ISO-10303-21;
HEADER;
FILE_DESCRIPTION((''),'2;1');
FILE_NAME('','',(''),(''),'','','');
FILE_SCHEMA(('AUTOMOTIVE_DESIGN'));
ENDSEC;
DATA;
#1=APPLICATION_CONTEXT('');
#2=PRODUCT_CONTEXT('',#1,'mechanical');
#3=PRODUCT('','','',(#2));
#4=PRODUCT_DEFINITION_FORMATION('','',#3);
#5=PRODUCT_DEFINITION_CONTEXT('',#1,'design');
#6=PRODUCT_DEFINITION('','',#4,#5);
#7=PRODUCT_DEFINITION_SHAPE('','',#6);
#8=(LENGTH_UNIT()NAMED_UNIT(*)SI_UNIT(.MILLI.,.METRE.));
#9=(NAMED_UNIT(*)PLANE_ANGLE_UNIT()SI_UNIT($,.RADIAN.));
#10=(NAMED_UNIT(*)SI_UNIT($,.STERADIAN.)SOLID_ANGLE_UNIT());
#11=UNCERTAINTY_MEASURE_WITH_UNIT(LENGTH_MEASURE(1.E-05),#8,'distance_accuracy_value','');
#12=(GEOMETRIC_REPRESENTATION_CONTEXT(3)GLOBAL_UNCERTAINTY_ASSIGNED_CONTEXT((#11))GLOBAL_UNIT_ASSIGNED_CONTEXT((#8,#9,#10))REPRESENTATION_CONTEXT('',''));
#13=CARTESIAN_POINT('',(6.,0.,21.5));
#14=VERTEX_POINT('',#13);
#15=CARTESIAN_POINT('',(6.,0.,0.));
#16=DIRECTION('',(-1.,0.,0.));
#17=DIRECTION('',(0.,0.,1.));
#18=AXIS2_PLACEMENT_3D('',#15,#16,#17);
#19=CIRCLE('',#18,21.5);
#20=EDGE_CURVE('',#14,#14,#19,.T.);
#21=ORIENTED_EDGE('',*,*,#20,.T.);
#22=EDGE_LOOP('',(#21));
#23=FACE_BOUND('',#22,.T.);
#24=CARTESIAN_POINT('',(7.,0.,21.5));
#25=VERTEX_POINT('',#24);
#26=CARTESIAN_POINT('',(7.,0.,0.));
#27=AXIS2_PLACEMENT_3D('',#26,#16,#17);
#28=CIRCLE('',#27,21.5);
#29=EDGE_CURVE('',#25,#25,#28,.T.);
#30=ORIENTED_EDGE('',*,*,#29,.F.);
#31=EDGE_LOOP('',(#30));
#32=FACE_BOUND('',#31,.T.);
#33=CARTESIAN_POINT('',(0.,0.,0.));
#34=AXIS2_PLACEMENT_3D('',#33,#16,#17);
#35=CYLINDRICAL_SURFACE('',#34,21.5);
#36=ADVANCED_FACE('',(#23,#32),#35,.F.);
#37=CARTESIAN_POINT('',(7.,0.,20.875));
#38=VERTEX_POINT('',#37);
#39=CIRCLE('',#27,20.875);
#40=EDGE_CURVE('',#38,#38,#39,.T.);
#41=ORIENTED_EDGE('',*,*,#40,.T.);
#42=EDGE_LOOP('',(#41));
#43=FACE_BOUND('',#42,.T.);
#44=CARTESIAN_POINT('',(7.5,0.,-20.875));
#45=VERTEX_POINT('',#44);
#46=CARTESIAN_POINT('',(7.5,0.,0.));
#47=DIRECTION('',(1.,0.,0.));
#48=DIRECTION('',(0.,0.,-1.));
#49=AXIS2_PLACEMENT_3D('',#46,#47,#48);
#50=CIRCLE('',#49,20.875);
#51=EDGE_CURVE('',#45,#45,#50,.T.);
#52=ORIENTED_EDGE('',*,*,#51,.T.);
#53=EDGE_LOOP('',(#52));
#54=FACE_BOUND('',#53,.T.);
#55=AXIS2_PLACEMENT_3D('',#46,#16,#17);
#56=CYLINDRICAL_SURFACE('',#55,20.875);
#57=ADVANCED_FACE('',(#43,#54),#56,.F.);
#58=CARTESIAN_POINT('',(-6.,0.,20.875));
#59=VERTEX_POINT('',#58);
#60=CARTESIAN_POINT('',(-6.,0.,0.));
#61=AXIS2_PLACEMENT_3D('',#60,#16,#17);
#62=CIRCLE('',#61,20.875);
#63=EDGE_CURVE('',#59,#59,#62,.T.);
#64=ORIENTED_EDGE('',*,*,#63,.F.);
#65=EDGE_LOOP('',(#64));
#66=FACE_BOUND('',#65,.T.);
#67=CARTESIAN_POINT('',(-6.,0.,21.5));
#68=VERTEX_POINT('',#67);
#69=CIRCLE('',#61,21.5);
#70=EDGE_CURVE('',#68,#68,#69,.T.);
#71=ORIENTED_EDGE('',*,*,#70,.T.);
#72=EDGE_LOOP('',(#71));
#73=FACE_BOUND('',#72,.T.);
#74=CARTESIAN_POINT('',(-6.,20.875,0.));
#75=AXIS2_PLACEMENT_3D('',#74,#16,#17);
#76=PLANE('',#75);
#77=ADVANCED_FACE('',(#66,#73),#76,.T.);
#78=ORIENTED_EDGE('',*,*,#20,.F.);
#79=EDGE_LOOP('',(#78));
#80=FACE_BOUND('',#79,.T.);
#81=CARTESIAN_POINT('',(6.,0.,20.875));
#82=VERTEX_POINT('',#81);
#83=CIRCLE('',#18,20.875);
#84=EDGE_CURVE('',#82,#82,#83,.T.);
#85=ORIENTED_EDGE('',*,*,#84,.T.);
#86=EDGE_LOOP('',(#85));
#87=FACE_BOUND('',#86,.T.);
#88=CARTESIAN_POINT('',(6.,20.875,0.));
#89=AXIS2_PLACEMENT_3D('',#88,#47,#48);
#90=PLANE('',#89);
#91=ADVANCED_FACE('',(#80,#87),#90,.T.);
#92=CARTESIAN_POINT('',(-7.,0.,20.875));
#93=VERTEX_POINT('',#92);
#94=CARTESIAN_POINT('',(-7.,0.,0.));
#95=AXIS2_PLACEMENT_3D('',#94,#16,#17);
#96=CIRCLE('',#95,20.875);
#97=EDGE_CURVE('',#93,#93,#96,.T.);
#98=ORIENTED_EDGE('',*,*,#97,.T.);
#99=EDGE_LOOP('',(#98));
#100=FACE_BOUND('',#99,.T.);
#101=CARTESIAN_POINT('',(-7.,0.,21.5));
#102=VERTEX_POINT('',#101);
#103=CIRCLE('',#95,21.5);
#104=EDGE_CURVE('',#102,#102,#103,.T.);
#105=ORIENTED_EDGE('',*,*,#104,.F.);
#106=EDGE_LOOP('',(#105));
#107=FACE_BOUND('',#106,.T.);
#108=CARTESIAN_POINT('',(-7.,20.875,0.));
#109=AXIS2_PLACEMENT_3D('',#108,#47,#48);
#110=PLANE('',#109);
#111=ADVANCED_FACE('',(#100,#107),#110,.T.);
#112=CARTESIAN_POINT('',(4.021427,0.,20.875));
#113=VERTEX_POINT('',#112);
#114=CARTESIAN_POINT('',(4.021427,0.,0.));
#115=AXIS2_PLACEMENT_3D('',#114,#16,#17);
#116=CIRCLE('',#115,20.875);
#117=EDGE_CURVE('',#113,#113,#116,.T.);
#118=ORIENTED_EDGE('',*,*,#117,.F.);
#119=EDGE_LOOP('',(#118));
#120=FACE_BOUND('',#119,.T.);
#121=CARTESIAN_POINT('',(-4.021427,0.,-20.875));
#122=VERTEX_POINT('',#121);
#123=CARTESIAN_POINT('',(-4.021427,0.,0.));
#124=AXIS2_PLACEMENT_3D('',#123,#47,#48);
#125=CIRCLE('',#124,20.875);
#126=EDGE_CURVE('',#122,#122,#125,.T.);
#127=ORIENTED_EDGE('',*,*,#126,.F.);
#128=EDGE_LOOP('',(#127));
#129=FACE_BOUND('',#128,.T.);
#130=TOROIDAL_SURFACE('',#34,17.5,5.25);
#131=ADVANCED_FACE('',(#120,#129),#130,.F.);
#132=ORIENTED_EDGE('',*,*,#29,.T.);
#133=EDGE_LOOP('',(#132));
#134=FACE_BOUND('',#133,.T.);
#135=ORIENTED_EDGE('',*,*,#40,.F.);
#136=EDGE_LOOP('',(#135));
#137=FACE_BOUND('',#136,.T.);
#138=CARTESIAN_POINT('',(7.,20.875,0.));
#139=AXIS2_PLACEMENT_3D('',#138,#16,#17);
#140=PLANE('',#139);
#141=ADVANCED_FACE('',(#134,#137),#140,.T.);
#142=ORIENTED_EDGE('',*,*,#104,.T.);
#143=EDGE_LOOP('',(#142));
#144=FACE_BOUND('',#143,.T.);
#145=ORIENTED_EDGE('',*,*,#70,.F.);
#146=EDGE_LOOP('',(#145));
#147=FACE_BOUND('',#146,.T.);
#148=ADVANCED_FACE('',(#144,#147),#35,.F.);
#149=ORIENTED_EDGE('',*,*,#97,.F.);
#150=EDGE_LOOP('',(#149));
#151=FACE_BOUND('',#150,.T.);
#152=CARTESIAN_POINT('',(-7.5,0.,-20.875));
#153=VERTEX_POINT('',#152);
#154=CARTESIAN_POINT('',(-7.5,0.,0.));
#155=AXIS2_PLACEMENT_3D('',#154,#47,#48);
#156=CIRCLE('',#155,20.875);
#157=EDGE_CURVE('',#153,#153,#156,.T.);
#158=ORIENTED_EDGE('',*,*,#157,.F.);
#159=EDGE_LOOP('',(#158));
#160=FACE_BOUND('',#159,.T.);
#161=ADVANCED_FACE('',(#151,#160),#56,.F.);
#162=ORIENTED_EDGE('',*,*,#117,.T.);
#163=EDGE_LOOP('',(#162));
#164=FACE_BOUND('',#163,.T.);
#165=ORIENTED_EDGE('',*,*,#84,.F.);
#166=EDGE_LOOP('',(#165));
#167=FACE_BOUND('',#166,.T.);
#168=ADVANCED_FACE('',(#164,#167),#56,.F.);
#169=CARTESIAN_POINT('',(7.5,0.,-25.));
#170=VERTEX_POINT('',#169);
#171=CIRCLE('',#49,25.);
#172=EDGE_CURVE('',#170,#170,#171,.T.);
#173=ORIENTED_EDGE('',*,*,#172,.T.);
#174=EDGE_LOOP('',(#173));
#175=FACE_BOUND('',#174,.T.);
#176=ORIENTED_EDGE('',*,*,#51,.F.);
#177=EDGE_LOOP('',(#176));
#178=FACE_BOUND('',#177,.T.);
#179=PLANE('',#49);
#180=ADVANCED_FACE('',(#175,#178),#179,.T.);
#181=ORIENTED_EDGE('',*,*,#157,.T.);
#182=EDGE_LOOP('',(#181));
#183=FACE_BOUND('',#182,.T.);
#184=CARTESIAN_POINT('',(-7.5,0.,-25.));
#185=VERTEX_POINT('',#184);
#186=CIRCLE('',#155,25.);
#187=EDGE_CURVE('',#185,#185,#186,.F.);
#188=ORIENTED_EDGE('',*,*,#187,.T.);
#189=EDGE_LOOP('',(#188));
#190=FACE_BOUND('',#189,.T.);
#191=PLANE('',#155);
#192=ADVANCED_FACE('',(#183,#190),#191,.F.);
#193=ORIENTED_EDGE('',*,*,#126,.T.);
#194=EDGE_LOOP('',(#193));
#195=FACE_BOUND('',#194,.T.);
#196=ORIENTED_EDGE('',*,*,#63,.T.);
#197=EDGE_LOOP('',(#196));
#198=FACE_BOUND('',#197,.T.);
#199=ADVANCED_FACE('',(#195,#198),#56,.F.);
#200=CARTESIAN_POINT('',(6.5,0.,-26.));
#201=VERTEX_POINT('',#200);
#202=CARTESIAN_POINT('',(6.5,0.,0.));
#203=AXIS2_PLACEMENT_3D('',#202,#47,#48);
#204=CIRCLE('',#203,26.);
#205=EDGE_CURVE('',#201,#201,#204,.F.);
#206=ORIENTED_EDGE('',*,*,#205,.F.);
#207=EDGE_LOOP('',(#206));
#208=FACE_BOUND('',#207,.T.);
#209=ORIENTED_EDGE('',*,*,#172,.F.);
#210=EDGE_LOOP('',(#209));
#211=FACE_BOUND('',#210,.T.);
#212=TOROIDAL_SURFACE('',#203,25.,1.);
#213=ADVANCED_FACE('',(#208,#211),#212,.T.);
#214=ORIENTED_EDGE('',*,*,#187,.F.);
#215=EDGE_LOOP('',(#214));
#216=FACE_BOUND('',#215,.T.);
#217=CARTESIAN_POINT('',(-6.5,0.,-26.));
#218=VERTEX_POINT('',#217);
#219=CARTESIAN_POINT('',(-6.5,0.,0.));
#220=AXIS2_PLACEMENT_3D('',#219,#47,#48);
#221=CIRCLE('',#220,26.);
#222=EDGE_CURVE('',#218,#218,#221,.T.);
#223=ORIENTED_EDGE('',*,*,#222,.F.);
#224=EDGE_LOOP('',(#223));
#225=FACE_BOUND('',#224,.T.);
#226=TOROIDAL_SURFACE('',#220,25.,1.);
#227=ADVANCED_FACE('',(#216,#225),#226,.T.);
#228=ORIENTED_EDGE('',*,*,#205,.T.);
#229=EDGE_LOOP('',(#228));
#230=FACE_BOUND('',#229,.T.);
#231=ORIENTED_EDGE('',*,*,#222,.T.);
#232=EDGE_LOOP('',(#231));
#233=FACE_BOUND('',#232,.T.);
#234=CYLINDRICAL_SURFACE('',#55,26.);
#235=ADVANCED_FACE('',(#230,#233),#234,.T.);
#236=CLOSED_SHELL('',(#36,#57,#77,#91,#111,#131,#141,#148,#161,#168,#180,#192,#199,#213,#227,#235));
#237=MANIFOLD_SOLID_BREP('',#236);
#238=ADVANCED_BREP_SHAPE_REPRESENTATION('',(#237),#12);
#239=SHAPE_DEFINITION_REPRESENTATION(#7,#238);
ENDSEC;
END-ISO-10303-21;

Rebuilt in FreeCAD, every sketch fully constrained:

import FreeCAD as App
import Part
import Sketcher
from FreeCAD import Vector
Q = App.Units.Quantity


def edges_at(feature, points):
    """Names of the edges that pass closest to the given points."""
    edges = feature.Shape.Edges
    near = lambda p: min(range(len(edges)), key=lambda i: edges[i].distToShape(Part.Vertex(*p))[0])
    return sorted({f"Edge{near(p) + 1}" for p in points})


def add_polygon(sketch, points):
    """Adds a closed chain of lines whose ends are joined by coincident constraints."""
    first, n = sketch.GeometryCount, len(points)
    for a, b in zip(points, points[1:] + points[:1]):
        sketch.addGeometry(Part.LineSegment(App.Vector(*a, 0), App.Vector(*b, 0)), False)
    for i in range(n):
        sketch.addConstraint(Sketcher.Constraint("Coincident", first + i, 2, first + (i + 1) % n, 1))

doc = App.newDocument("Part")
body = doc.addObject("PartDesign::Body", "Body")

sketch1 = doc.addObject("Sketcher::SketchObject", "Sketch")
body.addObject(sketch1)
sketch1.AttachmentSupport = (doc.YZ_Plane, [""])
sketch1.MapMode = "FlatFace"
sketch1.addGeometry([
    Part.Circle(Vector(0, 0, 0), Vector(0, 0, 1), 26),
    Part.Circle(Vector(0, 0, 0), Vector(0, 0, 1), 21),
], False)
sketch1.addConstraint([
    Sketcher.Constraint("Coincident", 0, 3, -1, 1),
    Sketcher.Constraint("Coincident", 1, 3, -1, 1),
    Sketcher.Constraint("Diameter", 0, Q("52 mm")),
    Sketcher.Constraint("Diameter", 1, Q("41.75 mm")),
])
pad1 = doc.addObject("PartDesign::Pad", "Pad")
body.addObject(pad1)
pad1.Profile = sketch1
pad1.Length = 15
pad1.Midplane = True

sketch2 = doc.addObject("Sketcher::SketchObject", "Sketch001")
body.addObject(sketch2)
sketch2.AttachmentSupport = (doc.XY_Plane, [""])
sketch2.MapMode = "FlatFace"
sketch2.addGeometry(Part.Circle(Vector(0, 18, 0), Vector(0, 0, 1), 5), False)
sketch2.addConstraint([
    Sketcher.Constraint("PointOnObject", 0, 3, -2),
    Sketcher.Constraint("Diameter", 0, Q("10.5 mm")),
    Sketcher.Constraint("DistanceY", -1, 1, 0, 3, Q("17.5 mm")),
])
groove = doc.addObject("PartDesign::Groove", "Groove")
body.addObject(groove)
groove.Profile = sketch2
groove.ReferenceAxis = (sketch2, ["H_Axis"])
groove.Angle = 360

sketch3 = doc.addObject("Sketcher::SketchObject", "Sketch002")
body.addObject(sketch3)
sketch3.AttachmentSupport = (doc.XY_Plane, [""])
sketch3.MapMode = "FlatFace"
add_polygon(sketch3, [(-7, 21.5), (-7, 20.9), (-6, 20.9), (-6, 21.5)])
add_polygon(sketch3, [(6, 21.5), (6, 20.9), (7, 20.9), (7, 21.5)])
sketch3.addConstraint([
    Sketcher.Constraint("Vertical", 0),
    Sketcher.Constraint("Horizontal", 1),
    Sketcher.Constraint("Vertical", 2),
    Sketcher.Constraint("Horizontal", 3),
    Sketcher.Constraint("Vertical", 4),
    Sketcher.Constraint("Horizontal", 5),
    Sketcher.Constraint("Vertical", 6),
    Sketcher.Constraint("Horizontal", 7),
    Sketcher.Constraint("Symmetric", 1, 2, 4, 2, -2),
    Sketcher.Constraint("Symmetric", 3, 2, 6, 2, -2),
    Sketcher.Constraint("DistanceX", 1, 1, 1, 2, Q("1 mm")),
    Sketcher.Constraint("DistanceX", 0, 2, -1, 1, Q("7 mm")),
    Sketcher.Constraint("DistanceY", -1, 1, 2, 2, Q("21.5 mm")),
    Sketcher.Constraint("DistanceY", 0, 2, 0, 1, Q("0.625 mm")),
])
groove2 = doc.addObject("PartDesign::Groove", "Groove001")
body.addObject(groove2)
groove2.Profile = sketch3
groove2.ReferenceAxis = (sketch3, ["H_Axis"])
groove2.Angle = 360
doc.recompute()

fillet = doc.addObject("PartDesign::Fillet", "Fillet")
body.addObject(fillet)
fillet.Base = (groove2, edges_at(groove2, [(-7.5, 0, 26), (7.5, 0, 26)]))
fillet.Radius = 1

doc.recompute()
